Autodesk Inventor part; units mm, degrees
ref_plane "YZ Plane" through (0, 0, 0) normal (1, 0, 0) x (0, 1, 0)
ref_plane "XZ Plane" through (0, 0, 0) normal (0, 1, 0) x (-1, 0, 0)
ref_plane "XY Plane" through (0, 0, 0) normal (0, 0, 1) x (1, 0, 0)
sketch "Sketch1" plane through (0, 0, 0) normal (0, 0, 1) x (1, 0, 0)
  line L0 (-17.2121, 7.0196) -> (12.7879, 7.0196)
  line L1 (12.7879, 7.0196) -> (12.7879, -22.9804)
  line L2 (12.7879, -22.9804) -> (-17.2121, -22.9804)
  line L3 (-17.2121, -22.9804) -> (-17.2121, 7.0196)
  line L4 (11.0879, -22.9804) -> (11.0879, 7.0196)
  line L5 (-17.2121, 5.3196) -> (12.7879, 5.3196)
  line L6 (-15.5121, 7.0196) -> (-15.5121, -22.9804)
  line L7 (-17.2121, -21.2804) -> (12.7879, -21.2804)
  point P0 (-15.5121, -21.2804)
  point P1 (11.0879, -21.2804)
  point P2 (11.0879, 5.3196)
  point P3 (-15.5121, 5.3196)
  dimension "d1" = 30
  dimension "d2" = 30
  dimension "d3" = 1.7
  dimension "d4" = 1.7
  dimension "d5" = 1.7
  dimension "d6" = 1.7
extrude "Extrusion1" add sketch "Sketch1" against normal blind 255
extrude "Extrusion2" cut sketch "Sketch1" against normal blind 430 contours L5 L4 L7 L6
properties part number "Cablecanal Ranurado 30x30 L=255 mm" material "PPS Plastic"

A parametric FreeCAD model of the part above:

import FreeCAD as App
import Part
import Sketcher

V = App.Vector
Q = App.Units.Quantity

doc = App.newDocument("Part")
params = doc.addObject("Spreadsheet::Sheet", "Params")
for row, (alias, value) in enumerate([
    ("sketch1_width", "30 mm"),
    ("pad1_length", "255 mm"),
    ("sketch2_width", "26.6 mm"),
    ("pocket1_length", "430 mm"),
], start=1):
    params.set(f"A{row}", alias)
    params.set(f"B{row}", "=" + value)
    params.setAlias(f"B{row}", alias)

body = doc.addObject("PartDesign::Body", "Body")

sketch1 = body.newObject("Sketcher::SketchObject", "Sketch")
sketch1.AttachmentSupport = (doc.getObject("XY_Plane"), [""])
sketch1.MapMode = "FlatFace"
sketch1.addGeometry(Part.LineSegment(V(-17.2121, 7.0196, 0), V(-17.2121, -22.9804, 0)), False)
sketch1.addGeometry(Part.LineSegment(V(-17.2121, -22.9804, 0), V(12.7879, -22.9804, 0)), False)
sketch1.addGeometry(Part.LineSegment(V(12.7879, -22.9804, 0), V(12.7879, 7.0196, 0)), False)
sketch1.addGeometry(Part.LineSegment(V(12.7879, 7.0196, 0), V(-17.2121, 7.0196, 0)), False)
sketch1.addConstraint(Sketcher.Constraint("Coincident", 0, 2, 1, 1))
sketch1.addConstraint(Sketcher.Constraint("Coincident", 1, 2, 2, 1))
sketch1.addConstraint(Sketcher.Constraint("Coincident", 2, 2, 3, 1))
sketch1.addConstraint(Sketcher.Constraint("Coincident", 3, 2, 0, 1))
sketch1.addConstraint(Sketcher.Constraint("Vertical", 0))
sketch1.addConstraint(Sketcher.Constraint("Horizontal", 1))
sketch1.addConstraint(Sketcher.Constraint("Vertical", 2))
sketch1.addConstraint(Sketcher.Constraint("Horizontal", 3))
sketch1.addConstraint(Sketcher.Constraint("Equal", 3, 0))
sketch1.addConstraint(Sketcher.Constraint("DistanceX", 1, 1, 1, 2, Q("30 mm")))
sketch1.addConstraint(Sketcher.Constraint("DistanceX", 0, 2, -1, 1, Q("17.212 mm")))
sketch1.addConstraint(Sketcher.Constraint("DistanceY", 0, 2, -1, 1, Q("22.9804 mm")))
sketch1.setExpression("Constraints[9]", "Params.sketch1_width")
pad1 = body.newObject("PartDesign::Pad", "Pad")
pad1.Profile = sketch1
pad1.setExpression("Length", "Params.pad1_length")
pad1.Reversed = True

sketch2 = body.newObject("Sketcher::SketchObject", "Sketch001")
sketch2.AttachmentSupport = (doc.getObject("XY_Plane"), [""])
sketch2.MapMode = "FlatFace"
sketch2.addGeometry(Part.LineSegment(V(11.0879, 5.3196, 0), V(-15.5121, 5.3196, 0)), False)
sketch2.addGeometry(Part.LineSegment(V(-15.5121, 5.3196, 0), V(-15.5121, -21.2804, 0)), False)
sketch2.addGeometry(Part.LineSegment(V(-15.5121, -21.2804, 0), V(11.0879, -21.2804, 0)), False)
sketch2.addGeometry(Part.LineSegment(V(11.0879, -21.2804, 0), V(11.0879, 5.3196, 0)), False)
sketch2.addConstraint(Sketcher.Constraint("Coincident", 0, 2, 1, 1))
sketch2.addConstraint(Sketcher.Constraint("Coincident", 1, 2, 2, 1))
sketch2.addConstraint(Sketcher.Constraint("Coincident", 2, 2, 3, 1))
sketch2.addConstraint(Sketcher.Constraint("Coincident", 3, 2, 0, 1))
sketch2.addConstraint(Sketcher.Constraint("Horizontal", 0))
sketch2.addConstraint(Sketcher.Constraint("Vertical", 1))
sketch2.addConstraint(Sketcher.Constraint("Horizontal", 2))
sketch2.addConstraint(Sketcher.Constraint("Vertical", 3))
sketch2.addConstraint(Sketcher.Constraint("Equal", 2, 1))
sketch2.addConstraint(Sketcher.Constraint("DistanceX", 0, 2, 0, 1, Q("26.6 mm")))
sketch2.addConstraint(Sketcher.Constraint("DistanceX", 0, 2, -1, 1, Q("15.512 mm")))
sketch2.addConstraint(Sketcher.Constraint("DistanceY", -1, 1, 0, 2, Q("5.3196 mm")))
sketch2.setExpression("Constraints[9]", "Params.sketch2_width")
pocket1 = body.newObject("PartDesign::Pocket", "Pocket")
pocket1.Profile = sketch2
pocket1.setExpression("Length", "Params.pocket1_length")

doc.recompute()
